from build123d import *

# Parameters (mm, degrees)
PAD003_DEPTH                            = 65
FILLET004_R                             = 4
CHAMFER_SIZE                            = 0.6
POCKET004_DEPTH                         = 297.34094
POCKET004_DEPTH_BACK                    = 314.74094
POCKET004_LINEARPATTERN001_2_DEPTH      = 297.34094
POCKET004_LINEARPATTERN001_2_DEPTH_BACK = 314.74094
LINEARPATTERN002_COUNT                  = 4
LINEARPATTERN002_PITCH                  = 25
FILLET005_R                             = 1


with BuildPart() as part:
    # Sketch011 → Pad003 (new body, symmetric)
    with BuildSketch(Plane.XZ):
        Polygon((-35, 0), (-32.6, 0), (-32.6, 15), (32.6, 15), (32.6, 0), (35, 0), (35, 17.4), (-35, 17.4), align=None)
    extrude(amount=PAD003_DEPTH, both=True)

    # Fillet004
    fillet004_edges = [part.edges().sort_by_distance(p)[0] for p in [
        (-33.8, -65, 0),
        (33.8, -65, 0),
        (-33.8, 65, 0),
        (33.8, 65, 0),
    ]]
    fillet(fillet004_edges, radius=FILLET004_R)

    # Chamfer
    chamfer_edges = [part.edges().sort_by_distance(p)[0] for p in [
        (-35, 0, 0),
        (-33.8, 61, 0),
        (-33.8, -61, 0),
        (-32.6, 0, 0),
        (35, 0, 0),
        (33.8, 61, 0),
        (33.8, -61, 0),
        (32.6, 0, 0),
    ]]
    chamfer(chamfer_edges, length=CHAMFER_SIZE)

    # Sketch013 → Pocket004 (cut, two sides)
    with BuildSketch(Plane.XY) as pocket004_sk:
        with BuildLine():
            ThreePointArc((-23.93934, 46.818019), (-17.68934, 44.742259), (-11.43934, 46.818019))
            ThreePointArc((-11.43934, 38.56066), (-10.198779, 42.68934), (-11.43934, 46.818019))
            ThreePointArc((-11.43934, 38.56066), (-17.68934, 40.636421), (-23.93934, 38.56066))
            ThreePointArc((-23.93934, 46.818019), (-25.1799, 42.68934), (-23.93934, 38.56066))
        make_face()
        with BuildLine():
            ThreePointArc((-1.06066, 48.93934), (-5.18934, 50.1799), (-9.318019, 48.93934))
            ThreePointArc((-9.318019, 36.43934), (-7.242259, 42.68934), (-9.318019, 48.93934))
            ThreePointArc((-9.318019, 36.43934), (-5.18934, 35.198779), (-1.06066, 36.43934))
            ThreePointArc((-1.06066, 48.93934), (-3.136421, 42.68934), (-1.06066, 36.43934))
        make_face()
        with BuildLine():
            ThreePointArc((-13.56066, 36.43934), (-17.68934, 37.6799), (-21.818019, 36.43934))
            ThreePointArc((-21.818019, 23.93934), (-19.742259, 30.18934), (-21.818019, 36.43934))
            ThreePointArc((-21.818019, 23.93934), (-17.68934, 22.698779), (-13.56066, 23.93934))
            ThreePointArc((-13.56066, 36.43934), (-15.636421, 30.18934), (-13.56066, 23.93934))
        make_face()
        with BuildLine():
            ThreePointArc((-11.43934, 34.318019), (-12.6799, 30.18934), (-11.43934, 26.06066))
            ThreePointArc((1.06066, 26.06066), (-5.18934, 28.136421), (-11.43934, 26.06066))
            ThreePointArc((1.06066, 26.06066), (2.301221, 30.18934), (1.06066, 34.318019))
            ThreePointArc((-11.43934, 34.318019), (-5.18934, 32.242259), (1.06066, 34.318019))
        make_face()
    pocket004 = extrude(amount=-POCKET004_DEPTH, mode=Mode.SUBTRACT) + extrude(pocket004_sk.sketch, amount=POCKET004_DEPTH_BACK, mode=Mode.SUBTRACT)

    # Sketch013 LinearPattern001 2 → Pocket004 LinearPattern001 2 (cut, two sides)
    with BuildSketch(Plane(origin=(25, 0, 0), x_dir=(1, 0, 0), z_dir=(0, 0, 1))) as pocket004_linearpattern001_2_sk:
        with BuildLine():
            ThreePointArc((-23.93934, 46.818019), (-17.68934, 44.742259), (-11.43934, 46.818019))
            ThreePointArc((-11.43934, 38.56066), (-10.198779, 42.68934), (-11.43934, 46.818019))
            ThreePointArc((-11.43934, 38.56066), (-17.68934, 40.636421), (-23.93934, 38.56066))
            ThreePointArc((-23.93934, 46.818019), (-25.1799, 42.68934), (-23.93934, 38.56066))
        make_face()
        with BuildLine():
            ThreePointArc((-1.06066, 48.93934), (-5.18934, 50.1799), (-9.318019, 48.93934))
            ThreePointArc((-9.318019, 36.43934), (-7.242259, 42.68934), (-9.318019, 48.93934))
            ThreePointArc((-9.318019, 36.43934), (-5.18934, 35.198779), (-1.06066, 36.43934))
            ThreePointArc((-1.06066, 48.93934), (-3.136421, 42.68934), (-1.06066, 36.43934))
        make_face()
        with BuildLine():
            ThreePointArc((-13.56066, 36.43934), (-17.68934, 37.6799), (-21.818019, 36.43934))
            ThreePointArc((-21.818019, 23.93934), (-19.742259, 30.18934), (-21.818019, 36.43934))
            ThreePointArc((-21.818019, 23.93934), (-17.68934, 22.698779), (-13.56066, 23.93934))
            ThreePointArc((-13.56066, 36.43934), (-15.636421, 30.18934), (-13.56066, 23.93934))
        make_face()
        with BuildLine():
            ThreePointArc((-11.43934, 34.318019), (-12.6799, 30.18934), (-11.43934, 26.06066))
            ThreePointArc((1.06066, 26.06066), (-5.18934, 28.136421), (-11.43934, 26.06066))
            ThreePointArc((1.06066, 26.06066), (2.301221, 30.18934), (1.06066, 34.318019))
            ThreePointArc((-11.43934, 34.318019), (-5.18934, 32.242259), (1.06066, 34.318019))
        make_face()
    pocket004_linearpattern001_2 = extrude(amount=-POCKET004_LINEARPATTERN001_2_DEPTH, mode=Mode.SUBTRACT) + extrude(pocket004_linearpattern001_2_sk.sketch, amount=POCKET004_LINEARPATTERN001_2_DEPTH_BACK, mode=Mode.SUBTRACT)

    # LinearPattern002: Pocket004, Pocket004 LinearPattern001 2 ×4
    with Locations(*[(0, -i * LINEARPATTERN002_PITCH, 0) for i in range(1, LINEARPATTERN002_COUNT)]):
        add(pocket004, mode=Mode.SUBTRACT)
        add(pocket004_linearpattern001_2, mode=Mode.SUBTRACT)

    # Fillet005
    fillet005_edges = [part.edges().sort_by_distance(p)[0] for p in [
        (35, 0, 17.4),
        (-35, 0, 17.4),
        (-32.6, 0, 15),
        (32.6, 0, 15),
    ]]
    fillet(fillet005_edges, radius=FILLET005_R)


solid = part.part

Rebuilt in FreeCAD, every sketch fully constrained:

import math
import FreeCAD as App
import Part
import Sketcher
from FreeCAD import Vector
Q = App.Units.Quantity


def edges_at(feature, points):
    """Names of the edges that pass closest to the given points."""
    edges = feature.Shape.Edges
    near = lambda p: min(range(len(edges)), key=lambda i: edges[i].distToShape(Part.Vertex(*p))[0])
    return sorted({f"Edge{near(p) + 1}" for p in points})

doc = App.newDocument("Part")
params = doc.addObject("Spreadsheet::Sheet", "Params")
for row, (alias, value) in enumerate([
    ("sketch1_width", "70 mm"),
    ("sketch1_height", "15 mm"),
    ("sketch1_width2", "2.4 mm"),
    ("sketch1_height2", "17.4 mm"),
    ("pad1_length", "130 mm"),
    ("fillet_radius", "4 mm"),
    ("chamfer_size", "0.6 mm"),
    ("linearpattern_pitch", "25 mm"),
    ("fillet2_radius", "1 mm"),
], start=1):
    params.set(f"A{row}", alias)
    params.set(f"B{row}", "=" + value)
    params.setAlias(f"B{row}", alias)

body = doc.addObject("PartDesign::Body", "Body")

# Sketch on XZ plane
sketch1 = body.newObject("Sketcher::SketchObject", "Sketch")
sketch1.AttachmentSupport = (doc.getObject("XZ_Plane"), [""])
sketch1.MapMode = "FlatFace"
sketch1.addGeometry([
    Part.LineSegment(Vector(-35, 0, 0), Vector(-32.6, 0, 0)),  # 0
    Part.LineSegment(Vector(-32.6, 0, 0), Vector(-32.6, 15, 0)),  # 1
    Part.LineSegment(Vector(-32.6, 15, 0), Vector(32.6, 15, 0)),  # 2
    Part.LineSegment(Vector(32.6, 15, 0), Vector(32.6, 0, 0)),  # 3
    Part.LineSegment(Vector(32.6, 0, 0), Vector(35, 0, 0)),  # 4
    Part.LineSegment(Vector(35, 0, 0), Vector(35, 17.4, 0)),  # 5
    Part.LineSegment(Vector(35, 17.4, 0), Vector(-35, 17.4, 0)),  # 6
    Part.LineSegment(Vector(-35, 17.4, 0), Vector(-35, 0, 0)),  # 7
], False)
sketch1.addConstraint([
    Sketcher.Constraint("Coincident", 0, 2, 1, 1),
    Sketcher.Constraint("Coincident", 1, 2, 2, 1),
    Sketcher.Constraint("Coincident", 2, 2, 3, 1),
    Sketcher.Constraint("Coincident", 3, 2, 4, 1),
    Sketcher.Constraint("Coincident", 4, 2, 5, 1),
    Sketcher.Constraint("Coincident", 5, 2, 6, 1),
    Sketcher.Constraint("Coincident", 6, 2, 7, 1),
    Sketcher.Constraint("Coincident", 7, 2, 0, 1),
    Sketcher.Constraint("Horizontal", 0),
    Sketcher.Constraint("Vertical", 1),
    Sketcher.Constraint("Horizontal", 2),
    Sketcher.Constraint("Vertical", 3),
    Sketcher.Constraint("Horizontal", 4),
    Sketcher.Constraint("Vertical", 5),
    Sketcher.Constraint("Horizontal", 6),
    Sketcher.Constraint("Vertical", 7),
    Sketcher.Constraint("Symmetric", 0, 2, 3, 2, -1, 1),
    Sketcher.Constraint("Symmetric", 4, 2, 7, 2, -2),
    Sketcher.Constraint("DistanceX", 6, 2, 6, 1, Q("70 mm")),
    Sketcher.Constraint("DistanceY", 1, 1, 1, 2, Q("15 mm")),
    Sketcher.Constraint("DistanceX", 0, 1, 0, 2, Q("2.4 mm")),
    Sketcher.Constraint("DistanceY", 5, 1, 5, 2, Q("17.4 mm")),
])
sketch1.setExpression("Constraints[18]", "Params.sketch1_width")
sketch1.setExpression("Constraints[19]", "Params.sketch1_height")
sketch1.setExpression("Constraints[20]", "Params.sketch1_width2")
sketch1.setExpression("Constraints[21]", "Params.sketch1_height2")
pad1 = body.newObject("PartDesign::Pad", "Pad")
pad1.Profile = sketch1
pad1.setExpression("Length", "Params.pad1_length")
pad1.Midplane = True
doc.recompute()

fillet = body.newObject("PartDesign::Fillet", "Fillet")
fillet.Base = (pad1, edges_at(pad1, [
    (-33.8, -65, 0),
    (33.8, -65, 0),
    (-33.8, 65, 0),
    (33.8, 65, 0),
]))
fillet.setExpression("Radius", "Params.fillet_radius")
doc.recompute()

chamfer = body.newObject("PartDesign::Chamfer", "Chamfer")
chamfer.Base = (fillet, edges_at(fillet, [
    (-35, 0, 0),
    (-33.8, 61, 0),
    (-33.8, -61, 0),
    (-32.6, 0, 0),
    (35, 0, 0),
    (33.8, 61, 0),
    (33.8, -61, 0),
    (32.6, 0, 0),
]))
chamfer.setExpression("Size", "Params.chamfer_size")

# Sketch on XY plane
sketch2 = body.newObject("Sketcher::SketchObject", "Sketch001")
sketch2.AttachmentSupport = (doc.getObject("XY_Plane"), [""])
sketch2.MapMode = "FlatFace"
sketch2.addGeometry([
    Part.ArcOfCircle(Part.Circle(Vector(-18, 55, 0), Vector(0, 0, 1), 10), math.radians(-127), math.radians(-53)),  # 0
    Part.ArcOfCircle(Part.Circle(Vector(-18, 43, 0), Vector(0, 0, 1), 7), math.radians(147), math.radians(213)),  # 1
    Part.ArcOfCircle(Part.Circle(Vector(-18, 30, 0), Vector(0, 0, 1), 10), math.radians(53), math.radians(127)),  # 2
    Part.ArcOfCircle(Part.Circle(Vector(-18, 43, 0), Vector(0, 0, 1), 7), math.radians(-33), math.radians(33)),  # 3
    Part.ArcOfCircle(Part.Circle(Vector(-5, 43, 0), Vector(0, 0, 1), 7), math.radians(57), math.radians(123)),  # 4
    Part.ArcOfCircle(Part.Circle(Vector(-18, 43, 0), Vector(0, 0, 1), 10), math.radians(-37), math.radians(37)),  # 5
    Part.ArcOfCircle(Part.Circle(Vector(-5, 43, 0), Vector(0, 0, 1), 7), math.radians(-123), math.radians(-57)),  # 6
    Part.ArcOfCircle(Part.Circle(Vector(7, 43, 0), Vector(0, 0, 1), 10), math.radians(143), math.radians(217)),  # 7
    Part.ArcOfCircle(Part.Circle(Vector(-18, 30, 0), Vector(0, 0, 1), 7), math.radians(57), math.radians(123)),  # 8
    Part.ArcOfCircle(Part.Circle(Vector(-30, 30, 0), Vector(0, 0, 1), 10), math.radians(-37), math.radians(37)),  # 9
    Part.ArcOfCircle(Part.Circle(Vector(-18, 30, 0), Vector(0, 0, 1), 7), math.radians(-123), math.radians(-57)),  # 10
    Part.ArcOfCircle(Part.Circle(Vector(-5, 30, 0), Vector(0, 0, 1), 10), math.radians(143), math.radians(217)),  # 11
    Part.ArcOfCircle(Part.Circle(Vector(-5, 30, 0), Vector(0, 0, 1), 7), math.radians(147), math.radians(213)),  # 12
    Part.ArcOfCircle(Part.Circle(Vector(-5, 18, 0), Vector(0, 0, 1), 10), math.radians(53), math.radians(127)),  # 13
    Part.ArcOfCircle(Part.Circle(Vector(-5, 30, 0), Vector(0, 0, 1), 7), math.radians(-33), math.radians(33)),  # 14
    Part.ArcOfCircle(Part.Circle(Vector(-5, 43, 0), Vector(0, 0, 1), 10), math.radians(-127), math.radians(-53)),  # 15
], False)
sketch2.addConstraint([
    Sketcher.Constraint("Coincident", 0, 1, 1, 1),
    Sketcher.Constraint("Coincident", 1, 2, 2, 2),
    Sketcher.Constraint("Coincident", 2, 1, 3, 1),
    Sketcher.Constraint("Coincident", 3, 2, 0, 2),
    Sketcher.Constraint("Coincident", 4, 2, 5, 2),
    Sketcher.Constraint("Coincident", 5, 1, 6, 1),
    Sketcher.Constraint("Coincident", 6, 2, 7, 2),
    Sketcher.Constraint("Coincident", 7, 1, 4, 1),
    Sketcher.Constraint("Coincident", 8, 2, 9, 2),
    Sketcher.Constraint("Coincident", 9, 1, 10, 1),
    Sketcher.Constraint("Coincident", 10, 2, 11, 2),
    Sketcher.Constraint("Coincident", 11, 1, 8, 1),
    Sketcher.Constraint("Coincident", 12, 2, 13, 2),
    Sketcher.Constraint("Coincident", 13, 1, 14, 1),
    Sketcher.Constraint("Coincident", 14, 2, 15, 2),
    Sketcher.Constraint("Coincident", 15, 1, 12, 1),
    Sketcher.Constraint("Coincident", 3, 3, 1, 3),
    Sketcher.Constraint("Coincident", 5, 3, 1, 3),
    Sketcher.Constraint("Coincident", 6, 3, 4, 3),
    Sketcher.Constraint("Coincident", 8, 3, 2, 3),
    Sketcher.Constraint("Coincident", 10, 3, 2, 3),
    Sketcher.Constraint("Coincident", 12, 3, 11, 3),
    Sketcher.Constraint("Coincident", 14, 3, 11, 3),
    Sketcher.Constraint("Coincident", 15, 3, 4, 3),
    Sketcher.Constraint("Equal", 1, 4),
    Sketcher.Constraint("Equal", 0, 5),
    Sketcher.Constraint("Equal", 3, 6),
    Sketcher.Constraint("Equal", 2, 7),
    Sketcher.Constraint("Equal", 4, 8),
    Sketcher.Constraint("Equal", 5, 9),
    Sketcher.Constraint("Equal", 6, 10),
    Sketcher.Constraint("Equal", 7, 11),
    Sketcher.Constraint("Equal", 8, 12),
    Sketcher.Constraint("Equal", 11, 13),
    Sketcher.Constraint("Equal", 10, 14),
    Sketcher.Constraint("Equal", 9, 15),
    Sketcher.Constraint("Horizontal", 3, 3, 4, 3),
    Sketcher.Constraint("Horizontal", 5, 3, 7, 3),
    Sketcher.Constraint("Horizontal", 2, 3, 9, 3),
    Sketcher.Constraint("Horizontal", 9, 3, 11, 3),
    Sketcher.Constraint("Horizontal", 1, 2, 2, 1),
    Sketcher.Constraint("Horizontal", 0, 1, 3, 2),
    Sketcher.Constraint("Horizontal", 5, 1, 6, 2),
    Sketcher.Constraint("Horizontal", 6, 2, 8, 2),
    Sketcher.Constraint("Horizontal", 9, 1, 10, 2),
    Sketcher.Constraint("Horizontal", 12, 2, 13, 1),
    Sketcher.Constraint("Horizontal", 14, 2, 15, 1),
    Sketcher.Constraint("Vertical", 1, 3, 8, 3),
    Sketcher.Constraint("Vertical", 0, 1, 1, 2),
    Sketcher.Constraint("Vertical", 3, 2, 12, 2),
    Sketcher.Constraint("Vertical", 13, 1, 14, 2),
    Sketcher.Constraint("DistanceY", 2, 3, 1, 3, Q("12.499999 mm")),
    Sketcher.Constraint("DistanceX", 4, 3, 7, 3, Q("12.499999 mm")),
    Sketcher.Constraint("Radius", 2, Q("10.44708 mm")),
    Sketcher.Constraint("DistanceX", 0, 3, -1, 1, Q("17.68934 mm")),
    Sketcher.Constraint("DistanceY", -1, 1, 1, 3, Q("42.68934 mm")),
])
pocket1 = body.newObject("PartDesign::Pocket", "Pocket")
pocket1.Profile = sketch2
pocket1.Type = "ThroughAll"
pocket1.Midplane = True

# Sketch on XY plane
sketch3 = body.newObject("Sketcher::SketchObject", "Sketch002")
sketch3.AttachmentSupport = (doc.getObject("XY_Plane"), [""])
sketch3.MapMode = "FlatFace"
sketch3.addGeometry([
    Part.ArcOfCircle(Part.Circle(Vector(7, 55, 0), Vector(0, 0, 1), 10), math.radians(-127), math.radians(-53)),  # 0
    Part.ArcOfCircle(Part.Circle(Vector(7, 43, 0), Vector(0, 0, 1), 7), math.radians(147), math.radians(213)),  # 1
    Part.ArcOfCircle(Part.Circle(Vector(7, 30, 0), Vector(0, 0, 1), 10), math.radians(53), math.radians(127)),  # 2
    Part.ArcOfCircle(Part.Circle(Vector(7, 43, 0), Vector(0, 0, 1), 7), math.radians(-33), math.radians(33)),  # 3
    Part.ArcOfCircle(Part.Circle(Vector(20, 43, 0), Vector(0, 0, 1), 7), math.radians(57), math.radians(123)),  # 4
    Part.ArcOfCircle(Part.Circle(Vector(7, 43, 0), Vector(0, 0, 1), 10), math.radians(-37), math.radians(37)),  # 5
    Part.ArcOfCircle(Part.Circle(Vector(20, 43, 0), Vector(0, 0, 1), 7), math.radians(-123), math.radians(-57)),  # 6
    Part.ArcOfCircle(Part.Circle(Vector(32, 43, 0), Vector(0, 0, 1), 10), math.radians(143), math.radians(217)),  # 7
    Part.ArcOfCircle(Part.Circle(Vector(7, 30, 0), Vector(0, 0, 1), 7), math.radians(57), math.radians(123)),  # 8
    Part.ArcOfCircle(Part.Circle(Vector(-5, 30, 0), Vector(0, 0, 1), 10), math.radians(-37), math.radians(37)),  # 9
    Part.ArcOfCircle(Part.Circle(Vector(7, 30, 0), Vector(0, 0, 1), 7), math.radians(-123), math.radians(-57)),  # 10
    Part.ArcOfCircle(Part.Circle(Vector(20, 30, 0), Vector(0, 0, 1), 10), math.radians(143), math.radians(217)),  # 11
    Part.ArcOfCircle(Part.Circle(Vector(20, 30, 0), Vector(0, 0, 1), 7), math.radians(147), math.radians(213)),  # 12
    Part.ArcOfCircle(Part.Circle(Vector(20, 18, 0), Vector(0, 0, 1), 10), math.radians(53), math.radians(127)),  # 13
    Part.ArcOfCircle(Part.Circle(Vector(20, 30, 0), Vector(0, 0, 1), 7), math.radians(-33), math.radians(33)),  # 14
    Part.ArcOfCircle(Part.Circle(Vector(20, 43, 0), Vector(0, 0, 1), 10), math.radians(-127), math.radians(-53)),  # 15
], False)
sketch3.addConstraint([
    Sketcher.Constraint("Coincident", 0, 1, 1, 1),
    Sketcher.Constraint("Coincident", 1, 2, 2, 2),
    Sketcher.Constraint("Coincident", 2, 1, 3, 1),
    Sketcher.Constraint("Coincident", 3, 2, 0, 2),
    Sketcher.Constraint("Coincident", 4, 2, 5, 2),
    Sketcher.Constraint("Coincident", 5, 1, 6, 1),
    Sketcher.Constraint("Coincident", 6, 2, 7, 2),
    Sketcher.Constraint("Coincident", 7, 1, 4, 1),
    Sketcher.Constraint("Coincident", 8, 2, 9, 2),
    Sketcher.Constraint("Coincident", 9, 1, 10, 1),
    Sketcher.Constraint("Coincident", 10, 2, 11, 2),
    Sketcher.Constraint("Coincident", 11, 1, 8, 1),
    Sketcher.Constraint("Coincident", 12, 2, 13, 2),
    Sketcher.Constraint("Coincident", 13, 1, 14, 1),
    Sketcher.Constraint("Coincident", 14, 2, 15, 2),
    Sketcher.Constraint("Coincident", 15, 1, 12, 1),
    Sketcher.Constraint("Coincident", 3, 3, 1, 3),
    Sketcher.Constraint("Coincident", 5, 3, 1, 3),
    Sketcher.Constraint("Coincident", 6, 3, 4, 3),
    Sketcher.Constraint("Coincident", 8, 3, 2, 3),
    Sketcher.Constraint("Coincident", 10, 3, 2, 3),
    Sketcher.Constraint("Coincident", 12, 3, 11, 3),
    Sketcher.Constraint("Coincident", 14, 3, 11, 3),
    Sketcher.Constraint("Coincident", 15, 3, 4, 3),
    Sketcher.Constraint("Equal", 1, 4),
    Sketcher.Constraint("Equal", 0, 5),
    Sketcher.Constraint("Equal", 3, 6),
    Sketcher.Constraint("Equal", 2, 7),
    Sketcher.Constraint("Equal", 4, 8),
    Sketcher.Constraint("Equal", 5, 9),
    Sketcher.Constraint("Equal", 6, 10),
    Sketcher.Constraint("Equal", 7, 11),
    Sketcher.Constraint("Equal", 8, 12),
    Sketcher.Constraint("Equal", 11, 13),
    Sketcher.Constraint("Equal", 10, 14),
    Sketcher.Constraint("Equal", 9, 15),
    Sketcher.Constraint("Horizontal", 3, 3, 4, 3),
    Sketcher.Constraint("Horizontal", 5, 3, 7, 3),
    Sketcher.Constraint("Horizontal", 2, 3, 9, 3),
    Sketcher.Constraint("Horizontal", 9, 3, 11, 3),
    Sketcher.Constraint("Horizontal", 1, 2, 2, 1),
    Sketcher.Constraint("Horizontal", 0, 1, 3, 2),
    Sketcher.Constraint("Horizontal", 5, 1, 6, 2),
    Sketcher.Constraint("Horizontal", 6, 2, 8, 2),
    Sketcher.Constraint("Horizontal", 9, 1, 10, 2),
    Sketcher.Constraint("Horizontal", 12, 2, 13, 1),
    Sketcher.Constraint("Horizontal", 14, 2, 15, 1),
    Sketcher.Constraint("Vertical", 1, 3, 8, 3),
    Sketcher.Constraint("Vertical", 0, 1, 1, 2),
    Sketcher.Constraint("Vertical", 3, 2, 12, 2),
    Sketcher.Constraint("Vertical", 13, 1, 14, 2),
    Sketcher.Constraint("DistanceY", 2, 3, 1, 3, Q("12.499999 mm")),
    Sketcher.Constraint("DistanceX", 4, 3, 7, 3, Q("12.499999 mm")),
    Sketcher.Constraint("Radius", 2, Q("10.44708 mm")),
    Sketcher.Constraint("DistanceX", -1, 1, 0, 3, Q("7.31066 mm")),
    Sketcher.Constraint("DistanceY", -1, 1, 1, 3, Q("42.68934 mm")),
])
pocket2 = body.newObject("PartDesign::Pocket", "Pocket001")
pocket2.Profile = sketch3
pocket2.Type = "ThroughAll"
pocket2.Midplane = True
doc.recompute()

linearpattern = body.newObject("PartDesign::LinearPattern", "LinearPattern")
linearpattern.Originals = [pocket1, pocket2]
linearpattern.Direction = (doc.getObject("Y_Axis"), [""])
linearpattern.Mode = "offset"
linearpattern.setExpression("Offset", "Params.linearpattern_pitch")
linearpattern.Occurrences = 4
linearpattern.Reversed = True
body.Tip = linearpattern
doc.recompute()

fillet2 = body.newObject("PartDesign::Fillet", "Fillet001")
fillet2.Base = (linearpattern, edges_at(linearpattern, [
    (35, 0, 17.4),
    (-35, 0, 17.4),
    (-32.6, 0, 15),
    (32.6, 0, 15),
]))
fillet2.setExpression("Radius", "Params.fillet2_radius")

doc.recompute()
